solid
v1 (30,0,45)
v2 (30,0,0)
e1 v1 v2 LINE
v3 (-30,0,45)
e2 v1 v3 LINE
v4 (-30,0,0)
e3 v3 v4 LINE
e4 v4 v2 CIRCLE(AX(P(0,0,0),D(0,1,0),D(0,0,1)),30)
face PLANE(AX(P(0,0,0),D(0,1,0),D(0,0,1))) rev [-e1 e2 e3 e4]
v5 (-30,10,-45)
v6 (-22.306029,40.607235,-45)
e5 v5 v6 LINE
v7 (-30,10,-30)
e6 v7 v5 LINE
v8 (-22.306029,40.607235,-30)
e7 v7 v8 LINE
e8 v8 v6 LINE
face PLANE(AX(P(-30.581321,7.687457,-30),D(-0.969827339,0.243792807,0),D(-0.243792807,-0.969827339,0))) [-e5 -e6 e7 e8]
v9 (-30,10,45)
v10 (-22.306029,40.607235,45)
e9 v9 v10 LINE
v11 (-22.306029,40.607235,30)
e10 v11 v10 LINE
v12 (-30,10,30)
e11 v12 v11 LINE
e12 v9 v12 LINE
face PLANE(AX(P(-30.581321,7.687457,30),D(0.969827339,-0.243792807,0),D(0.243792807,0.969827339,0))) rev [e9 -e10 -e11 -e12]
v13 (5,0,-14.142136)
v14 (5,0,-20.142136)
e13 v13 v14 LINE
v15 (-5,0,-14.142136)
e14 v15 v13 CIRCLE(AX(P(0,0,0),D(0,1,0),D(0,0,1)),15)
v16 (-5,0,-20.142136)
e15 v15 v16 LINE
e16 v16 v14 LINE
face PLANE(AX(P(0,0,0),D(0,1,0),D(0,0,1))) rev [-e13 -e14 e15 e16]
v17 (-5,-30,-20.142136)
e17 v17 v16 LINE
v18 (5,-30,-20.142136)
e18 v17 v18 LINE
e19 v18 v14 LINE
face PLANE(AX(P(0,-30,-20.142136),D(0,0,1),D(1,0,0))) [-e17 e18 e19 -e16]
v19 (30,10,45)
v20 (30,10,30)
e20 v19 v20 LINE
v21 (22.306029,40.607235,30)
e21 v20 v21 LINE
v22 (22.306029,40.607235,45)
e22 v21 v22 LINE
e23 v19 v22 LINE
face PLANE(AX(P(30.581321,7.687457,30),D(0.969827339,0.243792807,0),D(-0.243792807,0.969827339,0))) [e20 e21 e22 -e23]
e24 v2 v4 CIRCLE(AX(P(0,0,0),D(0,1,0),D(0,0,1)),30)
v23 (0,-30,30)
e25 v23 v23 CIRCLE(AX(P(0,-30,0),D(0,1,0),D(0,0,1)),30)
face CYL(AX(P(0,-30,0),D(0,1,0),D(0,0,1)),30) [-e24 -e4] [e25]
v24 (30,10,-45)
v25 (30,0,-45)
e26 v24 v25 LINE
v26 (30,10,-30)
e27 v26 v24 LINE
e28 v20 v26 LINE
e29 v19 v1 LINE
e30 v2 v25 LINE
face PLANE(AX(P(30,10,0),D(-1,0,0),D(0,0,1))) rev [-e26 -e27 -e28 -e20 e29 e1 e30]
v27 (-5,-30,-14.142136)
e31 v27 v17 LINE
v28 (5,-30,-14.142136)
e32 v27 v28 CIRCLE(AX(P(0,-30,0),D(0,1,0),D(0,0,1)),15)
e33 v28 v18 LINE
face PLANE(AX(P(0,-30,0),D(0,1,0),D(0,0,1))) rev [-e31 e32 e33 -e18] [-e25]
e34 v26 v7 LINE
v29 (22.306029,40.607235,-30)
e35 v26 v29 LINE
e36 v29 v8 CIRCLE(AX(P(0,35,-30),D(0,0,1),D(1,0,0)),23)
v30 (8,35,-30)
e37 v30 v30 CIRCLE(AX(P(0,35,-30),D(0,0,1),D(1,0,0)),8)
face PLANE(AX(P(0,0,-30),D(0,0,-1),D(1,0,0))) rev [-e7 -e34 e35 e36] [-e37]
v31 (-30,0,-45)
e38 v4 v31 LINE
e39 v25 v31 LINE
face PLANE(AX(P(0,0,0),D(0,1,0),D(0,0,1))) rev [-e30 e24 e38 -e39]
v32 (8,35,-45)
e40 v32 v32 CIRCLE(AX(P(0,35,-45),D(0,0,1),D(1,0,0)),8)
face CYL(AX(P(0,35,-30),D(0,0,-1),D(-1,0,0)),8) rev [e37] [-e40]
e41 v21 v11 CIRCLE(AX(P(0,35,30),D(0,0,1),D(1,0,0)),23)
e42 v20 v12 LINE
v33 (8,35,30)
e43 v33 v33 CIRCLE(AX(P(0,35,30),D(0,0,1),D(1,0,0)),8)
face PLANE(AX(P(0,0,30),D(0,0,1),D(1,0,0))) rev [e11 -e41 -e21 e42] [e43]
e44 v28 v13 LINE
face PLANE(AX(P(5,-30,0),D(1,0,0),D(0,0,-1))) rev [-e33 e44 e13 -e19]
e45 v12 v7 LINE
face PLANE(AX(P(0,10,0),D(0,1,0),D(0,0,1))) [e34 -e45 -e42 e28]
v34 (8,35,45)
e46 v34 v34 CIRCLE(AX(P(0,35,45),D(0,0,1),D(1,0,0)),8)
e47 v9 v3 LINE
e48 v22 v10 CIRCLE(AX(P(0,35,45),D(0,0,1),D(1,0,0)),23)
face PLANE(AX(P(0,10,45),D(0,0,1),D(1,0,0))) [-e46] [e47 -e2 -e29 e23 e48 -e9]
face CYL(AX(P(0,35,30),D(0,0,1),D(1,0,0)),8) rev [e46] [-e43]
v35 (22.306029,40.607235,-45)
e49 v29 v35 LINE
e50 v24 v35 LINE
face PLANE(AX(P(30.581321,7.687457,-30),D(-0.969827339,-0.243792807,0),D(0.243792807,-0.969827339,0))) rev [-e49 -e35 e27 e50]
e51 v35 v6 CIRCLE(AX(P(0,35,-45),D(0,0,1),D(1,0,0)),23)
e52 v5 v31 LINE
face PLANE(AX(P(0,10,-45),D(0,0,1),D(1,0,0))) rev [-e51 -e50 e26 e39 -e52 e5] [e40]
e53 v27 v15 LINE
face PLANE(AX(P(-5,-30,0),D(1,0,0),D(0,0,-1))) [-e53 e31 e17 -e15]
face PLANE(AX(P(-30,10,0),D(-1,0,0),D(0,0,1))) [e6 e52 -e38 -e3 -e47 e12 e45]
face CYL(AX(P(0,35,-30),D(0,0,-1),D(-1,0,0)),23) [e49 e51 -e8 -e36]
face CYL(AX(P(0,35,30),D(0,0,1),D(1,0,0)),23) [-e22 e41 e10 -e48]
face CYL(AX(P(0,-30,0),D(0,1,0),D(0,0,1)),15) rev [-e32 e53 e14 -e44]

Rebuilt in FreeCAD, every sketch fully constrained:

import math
import FreeCAD as App
import Part
import Sketcher
Q = App.Units.Quantity


def add_polygon(sketch, points):
    """Adds a closed chain of lines whose ends are joined by coincident constraints."""
    first, n = sketch.GeometryCount, len(points)
    for a, b in zip(points, points[1:] + points[:1]):
        sketch.addGeometry(Part.LineSegment(App.Vector(*a, 0), App.Vector(*b, 0)), False)
    for i in range(n):
        sketch.addConstraint(Sketcher.Constraint("Coincident", first + i, 2, first + (i + 1) % n, 1))

doc = App.newDocument("Part")
body = doc.addObject("PartDesign::Body", "Body")

sketch1 = doc.addObject("Sketcher::SketchObject", "Sketch")
body.addObject(sketch1)
sketch1.AttachmentSupport = (doc.XZ_Plane, [""])
sketch1.MapMode = "FlatFace"
add_polygon(sketch1, [(-30, -45), (-30, 45), (30, 45), (30, -45)])
sketch1.addConstraint(Sketcher.Constraint("Vertical", 0))
sketch1.addConstraint(Sketcher.Constraint("Horizontal", 1))
sketch1.addConstraint(Sketcher.Constraint("Vertical", 2))
sketch1.addConstraint(Sketcher.Constraint("Horizontal", 3))
sketch1.addConstraint(Sketcher.Constraint("Symmetric", 0, 2, 2, 2, -1, 1))
sketch1.addConstraint(Sketcher.Constraint("DistanceX", 1, 1, 1, 2, Q("60 mm")))
sketch1.addConstraint(Sketcher.Constraint("DistanceY", 0, 1, 0, 2, Q("90 mm")))
pad1 = doc.addObject("PartDesign::Pad", "Pad")
body.addObject(pad1)
pad1.Profile = sketch1
pad1.Length = 10
pad1.Reversed = True

sketch2 = doc.addObject("Sketcher::SketchObject", "Sketch001")
body.addObject(sketch2)
sketch2.AttachmentSupport = (doc.XZ_Plane, [""])
sketch2.MapMode = "FlatFace"
sketch2.addGeometry(Part.Circle(App.Vector(0, 0, 0), App.Vector(0, 0, 1), 30), False)
sketch2.addGeometry(Part.LineSegment(App.Vector(-5, -20, 0), App.Vector(5, -20, 0)), False)
sketch2.addGeometry(Part.LineSegment(App.Vector(5, -20, 0), App.Vector(5, -14, 0)), False)
sketch2.addGeometry(Part.ArcOfCircle(Part.Circle(App.Vector(0, 0, 0), App.Vector(0, 0, 1), 15), math.radians(-71), math.radians(0)), False)
sketch2.addGeometry(Part.ArcOfCircle(Part.Circle(App.Vector(0, 0, 0), App.Vector(0, 0, 1), 15), math.radians(0), math.radians(251)), False)
sketch2.addGeometry(Part.LineSegment(App.Vector(-5, -14, 0), App.Vector(-5, -20, 0)), False)
sketch2.addConstraint(Sketcher.Constraint("Coincident", 1, 2, 2, 1))
sketch2.addConstraint(Sketcher.Constraint("Coincident", 2, 2, 3, 1))
sketch2.addConstraint(Sketcher.Constraint("Tangent", 3, 2, 4, 1))
sketch2.addConstraint(Sketcher.Constraint("Coincident", 4, 2, 5, 1))
sketch2.addConstraint(Sketcher.Constraint("Coincident", 5, 2, 1, 1))
sketch2.addConstraint(Sketcher.Constraint("Horizontal", 1))
sketch2.addConstraint(Sketcher.Constraint("Vertical", 2))
sketch2.addConstraint(Sketcher.Constraint("Vertical", 5))
sketch2.addConstraint(Sketcher.Constraint("Coincident", 0, 3, -1, 1))
sketch2.addConstraint(Sketcher.Constraint("Coincident", 3, 3, -1, 1))
sketch2.addConstraint(Sketcher.Constraint("Equal", 3, 4))
sketch2.addConstraint(Sketcher.Constraint("PointOnObject", 3, 2, -1))
sketch2.addConstraint(Sketcher.Constraint("Horizontal", 2, 2, 4, 2))
sketch2.addConstraint(Sketcher.Constraint("Diameter", 0, Q("60 mm")))
sketch2.addConstraint(Sketcher.Constraint("Radius", 3, Q("15 mm")))
sketch2.addConstraint(Sketcher.Constraint("DistanceX", 1, 1, 1, 2, Q("10 mm")))
sketch2.addConstraint(Sketcher.Constraint("DistanceY", 2, 1, 2, 2, Q("6 mm")))
pad2 = doc.addObject("PartDesign::Pad", "Pad001")
body.addObject(pad2)
pad2.Profile = sketch2
pad2.Length = 30

sketch3 = doc.addObject("Sketcher::SketchObject", "Sketch002")
body.addObject(sketch3)
sketch3.AttachmentSupport = (doc.XY_Plane, [""])
sketch3.MapMode = "FlatFace"
sketch3.AttachmentOffset = App.Placement(App.Vector(0, 0, 45), App.Rotation())
sketch3.addGeometry(Part.LineSegment(App.Vector(30, 10, 0), App.Vector(22, 41, 0)), False)
sketch3.addGeometry(Part.ArcOfCircle(Part.Circle(App.Vector(0, 35, 0), App.Vector(0, 0, 1), 23), math.radians(14), math.radians(166)), False)
sketch3.addGeometry(Part.LineSegment(App.Vector(-22, 41, 0), App.Vector(-30, 10, 0)), False)
sketch3.addGeometry(Part.LineSegment(App.Vector(-30, 10, 0), App.Vector(30, 10, 0)), False)
sketch3.addGeometry(Part.Circle(App.Vector(0, 35, 0), App.Vector(0, 0, 1), 8), False)
sketch3.addConstraint(Sketcher.Constraint("Tangent", 0, 2, 1, 1))
sketch3.addConstraint(Sketcher.Constraint("Tangent", 1, 2, 2, 1))
sketch3.addConstraint(Sketcher.Constraint("Coincident", 2, 2, 3, 1))
sketch3.addConstraint(Sketcher.Constraint("Coincident", 3, 2, 0, 1))
sketch3.addConstraint(Sketcher.Constraint("Horizontal", 3))
sketch3.addConstraint(Sketcher.Constraint("Coincident", 4, 3, 1, 3))
sketch3.addConstraint(Sketcher.Constraint("Symmetric", 0, 2, 1, 2, -2))
sketch3.addConstraint(Sketcher.Constraint("Diameter", 4, Q("16 mm")))
sketch3.addConstraint(Sketcher.Constraint("Radius", 1, Q("23 mm")))
sketch3.addConstraint(Sketcher.Constraint("DistanceX", 3, 1, 3, 2, Q("60 mm")))
sketch3.addConstraint(Sketcher.Constraint("DistanceY", -1, 1, 1, 3, Q("35 mm")))
sketch3.addConstraint(Sketcher.Constraint("DistanceY", -1, 1, 2, 2, Q("10 mm")))
pad3 = doc.addObject("PartDesign::Pad", "Pad002")
body.addObject(pad3)
pad3.Profile = sketch3
pad3.Length = 15
pad3.Reversed = True
doc.recompute()

mirrored = doc.addObject("PartDesign::Mirrored", "Mirrored")
body.addObject(mirrored)
mirrored.Originals = [pad3]
mirrored.MirrorPlane = (doc.XY_Plane, [""])
body.Tip = mirrored

doc.recompute()
